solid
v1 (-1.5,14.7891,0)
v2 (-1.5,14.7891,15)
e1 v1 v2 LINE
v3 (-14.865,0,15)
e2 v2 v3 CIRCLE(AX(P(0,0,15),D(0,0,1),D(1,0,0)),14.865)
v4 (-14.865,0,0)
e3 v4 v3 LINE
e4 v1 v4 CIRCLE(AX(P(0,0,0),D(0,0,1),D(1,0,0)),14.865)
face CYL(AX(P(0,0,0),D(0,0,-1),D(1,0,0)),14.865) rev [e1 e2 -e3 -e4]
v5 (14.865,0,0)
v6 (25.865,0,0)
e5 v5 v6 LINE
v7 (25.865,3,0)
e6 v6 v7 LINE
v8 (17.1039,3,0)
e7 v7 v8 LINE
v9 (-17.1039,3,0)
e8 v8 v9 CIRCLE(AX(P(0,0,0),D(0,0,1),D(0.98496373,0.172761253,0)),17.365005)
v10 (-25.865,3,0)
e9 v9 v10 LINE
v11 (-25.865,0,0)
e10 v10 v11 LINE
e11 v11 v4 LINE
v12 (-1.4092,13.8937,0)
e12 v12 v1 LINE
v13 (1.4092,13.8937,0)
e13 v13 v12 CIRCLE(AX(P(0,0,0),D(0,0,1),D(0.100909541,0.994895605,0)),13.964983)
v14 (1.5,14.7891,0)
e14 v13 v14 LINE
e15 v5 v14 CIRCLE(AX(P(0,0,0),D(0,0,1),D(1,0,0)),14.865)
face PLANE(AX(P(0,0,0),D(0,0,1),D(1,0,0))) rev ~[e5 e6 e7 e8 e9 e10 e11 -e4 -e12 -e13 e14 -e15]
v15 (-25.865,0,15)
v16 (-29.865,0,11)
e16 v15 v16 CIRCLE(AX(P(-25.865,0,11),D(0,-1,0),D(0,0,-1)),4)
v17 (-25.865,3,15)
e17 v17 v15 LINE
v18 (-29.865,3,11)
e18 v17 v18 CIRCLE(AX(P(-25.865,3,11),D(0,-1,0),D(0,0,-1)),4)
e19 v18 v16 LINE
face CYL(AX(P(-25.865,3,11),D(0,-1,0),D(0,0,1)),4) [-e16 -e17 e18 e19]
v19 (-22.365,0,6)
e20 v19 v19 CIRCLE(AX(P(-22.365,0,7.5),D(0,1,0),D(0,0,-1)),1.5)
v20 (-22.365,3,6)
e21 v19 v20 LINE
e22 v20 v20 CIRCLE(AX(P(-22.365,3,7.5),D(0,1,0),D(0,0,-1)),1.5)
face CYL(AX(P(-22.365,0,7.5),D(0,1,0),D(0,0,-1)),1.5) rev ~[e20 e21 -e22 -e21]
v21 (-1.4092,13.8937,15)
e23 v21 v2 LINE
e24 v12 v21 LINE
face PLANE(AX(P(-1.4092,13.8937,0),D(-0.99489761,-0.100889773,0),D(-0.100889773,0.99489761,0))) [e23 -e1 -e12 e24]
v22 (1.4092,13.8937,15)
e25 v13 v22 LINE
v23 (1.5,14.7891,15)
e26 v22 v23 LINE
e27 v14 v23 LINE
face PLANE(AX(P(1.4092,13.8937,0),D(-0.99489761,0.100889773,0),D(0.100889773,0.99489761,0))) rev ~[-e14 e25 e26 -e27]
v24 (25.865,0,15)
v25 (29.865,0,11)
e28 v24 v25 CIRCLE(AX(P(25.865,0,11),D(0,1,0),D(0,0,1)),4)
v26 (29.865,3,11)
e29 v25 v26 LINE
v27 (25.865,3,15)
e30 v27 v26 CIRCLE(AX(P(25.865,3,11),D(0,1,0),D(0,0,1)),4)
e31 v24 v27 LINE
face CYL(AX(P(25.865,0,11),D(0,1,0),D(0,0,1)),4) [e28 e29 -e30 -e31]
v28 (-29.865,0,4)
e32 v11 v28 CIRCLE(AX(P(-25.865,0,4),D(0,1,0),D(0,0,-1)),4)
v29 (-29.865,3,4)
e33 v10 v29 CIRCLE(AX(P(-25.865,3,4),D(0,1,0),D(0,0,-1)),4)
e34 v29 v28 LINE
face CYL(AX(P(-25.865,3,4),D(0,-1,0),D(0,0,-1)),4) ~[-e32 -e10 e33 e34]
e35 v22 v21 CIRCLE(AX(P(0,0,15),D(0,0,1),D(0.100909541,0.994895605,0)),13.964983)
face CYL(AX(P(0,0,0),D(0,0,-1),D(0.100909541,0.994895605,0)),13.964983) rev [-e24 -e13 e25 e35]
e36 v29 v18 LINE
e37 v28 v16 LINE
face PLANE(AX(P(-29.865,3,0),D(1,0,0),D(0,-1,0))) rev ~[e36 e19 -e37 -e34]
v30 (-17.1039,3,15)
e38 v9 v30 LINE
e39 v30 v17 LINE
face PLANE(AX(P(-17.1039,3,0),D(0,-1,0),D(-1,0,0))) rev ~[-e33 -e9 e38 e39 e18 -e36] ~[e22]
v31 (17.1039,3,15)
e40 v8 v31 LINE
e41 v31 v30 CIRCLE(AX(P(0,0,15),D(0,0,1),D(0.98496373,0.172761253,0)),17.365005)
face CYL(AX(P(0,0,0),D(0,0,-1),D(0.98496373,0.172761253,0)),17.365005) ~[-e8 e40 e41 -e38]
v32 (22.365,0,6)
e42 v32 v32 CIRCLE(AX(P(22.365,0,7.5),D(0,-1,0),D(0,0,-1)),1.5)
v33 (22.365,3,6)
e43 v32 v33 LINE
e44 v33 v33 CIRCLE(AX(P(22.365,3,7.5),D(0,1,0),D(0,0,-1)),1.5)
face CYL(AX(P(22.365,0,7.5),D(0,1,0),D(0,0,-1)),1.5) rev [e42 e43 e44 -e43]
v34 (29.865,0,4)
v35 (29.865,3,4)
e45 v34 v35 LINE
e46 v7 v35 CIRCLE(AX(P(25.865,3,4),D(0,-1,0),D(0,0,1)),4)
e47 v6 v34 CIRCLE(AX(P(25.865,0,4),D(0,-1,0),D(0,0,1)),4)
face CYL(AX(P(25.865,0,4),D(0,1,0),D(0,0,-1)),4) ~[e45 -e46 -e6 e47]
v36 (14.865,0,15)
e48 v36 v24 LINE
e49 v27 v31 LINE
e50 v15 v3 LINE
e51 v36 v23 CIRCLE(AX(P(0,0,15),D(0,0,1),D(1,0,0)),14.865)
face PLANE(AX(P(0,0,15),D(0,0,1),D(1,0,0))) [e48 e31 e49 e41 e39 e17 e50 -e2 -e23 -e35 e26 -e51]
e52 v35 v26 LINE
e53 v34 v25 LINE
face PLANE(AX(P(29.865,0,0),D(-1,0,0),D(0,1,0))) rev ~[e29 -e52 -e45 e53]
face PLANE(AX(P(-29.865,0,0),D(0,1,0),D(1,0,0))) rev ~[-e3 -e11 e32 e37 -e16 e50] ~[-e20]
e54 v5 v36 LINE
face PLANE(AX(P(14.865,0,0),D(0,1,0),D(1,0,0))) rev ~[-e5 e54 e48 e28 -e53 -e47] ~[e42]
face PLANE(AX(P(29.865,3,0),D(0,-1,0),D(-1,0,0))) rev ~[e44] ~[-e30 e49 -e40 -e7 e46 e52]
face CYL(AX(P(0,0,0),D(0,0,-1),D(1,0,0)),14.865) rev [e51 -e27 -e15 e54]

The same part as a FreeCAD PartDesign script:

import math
import FreeCAD as App
import Part
import Sketcher
Q = App.Units.Quantity


def edges_at(feature, points):
    """Names of the edges that pass closest to the given points."""
    edges = feature.Shape.Edges
    near = lambda p: min(range(len(edges)), key=lambda i: edges[i].distToShape(Part.Vertex(*p))[0])
    return sorted({f"Edge{near(p) + 1}" for p in points})

doc = App.newDocument("Part")
body = doc.addObject("PartDesign::Body", "Body")

# Sketch on XY plane
sketch1 = doc.addObject("Sketcher::SketchObject", "Sketch")
body.addObject(sketch1)
sketch1.AttachmentSupport = (doc.XY_Plane, [""])
sketch1.MapMode = "FlatFace"
sketch1.addGeometry(Part.ArcOfCircle(Part.Circle(App.Vector(0, 0, 0), App.Vector(0, 0, 1), 14.9), math.radians(0), math.radians(84)), False)
sketch1.addGeometry(Part.LineSegment(App.Vector(14.9, 0, 0), App.Vector(29.9, 0, 0)), False)
sketch1.addGeometry(Part.LineSegment(App.Vector(29.9, 0, 0), App.Vector(29.9, 3, 0)), False)
sketch1.addGeometry(Part.LineSegment(App.Vector(29.9, 3, 0), App.Vector(17.1, 3, 0)), False)
sketch1.addGeometry(Part.ArcOfCircle(Part.Circle(App.Vector(0, 0, 0), App.Vector(0, 0, 1), 17.4), math.radians(10), math.radians(170)), False)
sketch1.addGeometry(Part.LineSegment(App.Vector(-17.1, 3, 0), App.Vector(-29.9, 3, 0)), False)
sketch1.addGeometry(Part.LineSegment(App.Vector(-29.9, 3, 0), App.Vector(-29.9, 0, 0)), False)
sketch1.addGeometry(Part.LineSegment(App.Vector(-29.9, 0, 0), App.Vector(-14.9, 0, 0)), False)
sketch1.addGeometry(Part.ArcOfCircle(Part.Circle(App.Vector(0, 0, 0), App.Vector(0, 0, 1), 14.9), math.radians(96), math.radians(180)), False)
sketch1.addGeometry(Part.LineSegment(App.Vector(-1.5, 14.8, 0), App.Vector(-1.4, 13.9, 0)), False)
sketch1.addGeometry(Part.ArcOfCircle(Part.Circle(App.Vector(0, 0, 0), App.Vector(0, 0, 1), 14), math.radians(84.21), math.radians(95.79)), False)
sketch1.addGeometry(Part.LineSegment(App.Vector(1.4, 13.9, 0), App.Vector(1.5, 14.8, 0)), False)
sketch1.addConstraint(Sketcher.Constraint("Coincident", 0, 1, 1, 1))
sketch1.addConstraint(Sketcher.Constraint("Coincident", 1, 2, 2, 1))
sketch1.addConstraint(Sketcher.Constraint("Coincident", 2, 2, 3, 1))
sketch1.addConstraint(Sketcher.Constraint("Coincident", 3, 2, 4, 1))
sketch1.addConstraint(Sketcher.Constraint("Coincident", 4, 2, 5, 1))
sketch1.addConstraint(Sketcher.Constraint("Coincident", 5, 2, 6, 1))
sketch1.addConstraint(Sketcher.Constraint("Coincident", 6, 2, 7, 1))
sketch1.addConstraint(Sketcher.Constraint("Coincident", 7, 2, 8, 2))
sketch1.addConstraint(Sketcher.Constraint("Coincident", 8, 1, 9, 1))
sketch1.addConstraint(Sketcher.Constraint("Coincident", 9, 2, 10, 2))
sketch1.addConstraint(Sketcher.Constraint("Coincident", 10, 1, 11, 1))
sketch1.addConstraint(Sketcher.Constraint("Coincident", 11, 2, 0, 2))
sketch1.addConstraint(Sketcher.Constraint("Horizontal", 1))
sketch1.addConstraint(Sketcher.Constraint("Vertical", 2))
sketch1.addConstraint(Sketcher.Constraint("Horizontal", 3))
sketch1.addConstraint(Sketcher.Constraint("Horizontal", 5))
sketch1.addConstraint(Sketcher.Constraint("Vertical", 6))
sketch1.addConstraint(Sketcher.Constraint("Horizontal", 7))
sketch1.addConstraint(Sketcher.Constraint("Coincident", 0, 3, -1, 1))
sketch1.addConstraint(Sketcher.Constraint("Coincident", 4, 3, -1, 1))
sketch1.addConstraint(Sketcher.Constraint("Coincident", 8, 3, -1, 1))
sketch1.addConstraint(Sketcher.Constraint("Coincident", 10, 3, -1, 1))
sketch1.addConstraint(Sketcher.Constraint("Equal", 0, 8))
sketch1.addConstraint(Sketcher.Constraint("Symmetric", 1, 2, 6, 2, -1, 1))
sketch1.addConstraint(Sketcher.Constraint("PointOnObject", 0, 1, -1))
sketch1.addConstraint(Sketcher.Constraint("Horizontal", 3, 2, 4, 2))
sketch1.addConstraint(Sketcher.Constraint("Horizontal", 9, 2, 10, 1))
sketch1.addConstraint(Sketcher.Constraint("Horizontal", 8, 1, 11, 2))
sketch1.addConstraint(Sketcher.Constraint("DistanceX", 1, 1, 1, 2, 15.0))
sketch1.addConstraint(Sketcher.Constraint("DistanceY", 2, 1, 2, 2, 3.0))
sketch1.addConstraint(Sketcher.Constraint("Radius", 0, 14.865))
sketch1.addConstraint(Sketcher.Constraint("DistanceX", 8, 1, 11, 2, 3.0))
sketch1.addConstraint(Sketcher.Constraint("Distance", 9, 0.9))
sketch1.addConstraint(Sketcher.Constraint("Radius", 4, 17.365))
sketch1.addConstraint(Sketcher.Constraint("Angle", 9, Q("-84.2096 deg")))
pad1 = doc.addObject("PartDesign::Pad", "Pad")
body.addObject(pad1)
pad1.Profile = sketch1
pad1.Length = 15

# Sketch on XZ plane
sketch2 = doc.addObject("Sketcher::SketchObject", "Sketch001")
body.addObject(sketch2)
sketch2.AttachmentSupport = (doc.XZ_Plane, [""])
sketch2.MapMode = "FlatFace"
sketch2.addGeometry(Part.Circle(App.Vector(-22.4, 7.5, 0), App.Vector(0, 0, 1), 1.5), False)
sketch2.addConstraint(Sketcher.Constraint("Diameter", 0, 3.0))
sketch2.addConstraint(Sketcher.Constraint("DistanceY", -1, 1, 0, 3, 7.5))
sketch2.addConstraint(Sketcher.Constraint("DistanceX", 0, 3, -1, 1, 22.365))
doc.recompute()
hole = doc.addObject("PartDesign::Hole", "Hole")
body.addObject(hole)
hole.Profile = sketch2
hole.ThreadType = "None"
hole.Diameter = 3
hole.DepthType = "ThroughAll"
doc.recompute()

mirrored = doc.addObject("PartDesign::Mirrored", "Mirrored")
body.addObject(mirrored)
mirrored.Originals = [hole]
mirrored.MirrorPlane = (doc.YZ_Plane, [""])
body.Tip = mirrored
doc.recompute()

fillet = doc.addObject("PartDesign::Fillet", "Fillet")
body.addObject(fillet)
fillet.Base = (mirrored, edges_at(mirrored, [
    (-29.865, 1.5, 0),
    (-29.865, 1.5, 15),
    (29.865, 1.5, 15),
    (29.865, 1.5, 0),
]))
fillet.Radius = 4

doc.recompute()
